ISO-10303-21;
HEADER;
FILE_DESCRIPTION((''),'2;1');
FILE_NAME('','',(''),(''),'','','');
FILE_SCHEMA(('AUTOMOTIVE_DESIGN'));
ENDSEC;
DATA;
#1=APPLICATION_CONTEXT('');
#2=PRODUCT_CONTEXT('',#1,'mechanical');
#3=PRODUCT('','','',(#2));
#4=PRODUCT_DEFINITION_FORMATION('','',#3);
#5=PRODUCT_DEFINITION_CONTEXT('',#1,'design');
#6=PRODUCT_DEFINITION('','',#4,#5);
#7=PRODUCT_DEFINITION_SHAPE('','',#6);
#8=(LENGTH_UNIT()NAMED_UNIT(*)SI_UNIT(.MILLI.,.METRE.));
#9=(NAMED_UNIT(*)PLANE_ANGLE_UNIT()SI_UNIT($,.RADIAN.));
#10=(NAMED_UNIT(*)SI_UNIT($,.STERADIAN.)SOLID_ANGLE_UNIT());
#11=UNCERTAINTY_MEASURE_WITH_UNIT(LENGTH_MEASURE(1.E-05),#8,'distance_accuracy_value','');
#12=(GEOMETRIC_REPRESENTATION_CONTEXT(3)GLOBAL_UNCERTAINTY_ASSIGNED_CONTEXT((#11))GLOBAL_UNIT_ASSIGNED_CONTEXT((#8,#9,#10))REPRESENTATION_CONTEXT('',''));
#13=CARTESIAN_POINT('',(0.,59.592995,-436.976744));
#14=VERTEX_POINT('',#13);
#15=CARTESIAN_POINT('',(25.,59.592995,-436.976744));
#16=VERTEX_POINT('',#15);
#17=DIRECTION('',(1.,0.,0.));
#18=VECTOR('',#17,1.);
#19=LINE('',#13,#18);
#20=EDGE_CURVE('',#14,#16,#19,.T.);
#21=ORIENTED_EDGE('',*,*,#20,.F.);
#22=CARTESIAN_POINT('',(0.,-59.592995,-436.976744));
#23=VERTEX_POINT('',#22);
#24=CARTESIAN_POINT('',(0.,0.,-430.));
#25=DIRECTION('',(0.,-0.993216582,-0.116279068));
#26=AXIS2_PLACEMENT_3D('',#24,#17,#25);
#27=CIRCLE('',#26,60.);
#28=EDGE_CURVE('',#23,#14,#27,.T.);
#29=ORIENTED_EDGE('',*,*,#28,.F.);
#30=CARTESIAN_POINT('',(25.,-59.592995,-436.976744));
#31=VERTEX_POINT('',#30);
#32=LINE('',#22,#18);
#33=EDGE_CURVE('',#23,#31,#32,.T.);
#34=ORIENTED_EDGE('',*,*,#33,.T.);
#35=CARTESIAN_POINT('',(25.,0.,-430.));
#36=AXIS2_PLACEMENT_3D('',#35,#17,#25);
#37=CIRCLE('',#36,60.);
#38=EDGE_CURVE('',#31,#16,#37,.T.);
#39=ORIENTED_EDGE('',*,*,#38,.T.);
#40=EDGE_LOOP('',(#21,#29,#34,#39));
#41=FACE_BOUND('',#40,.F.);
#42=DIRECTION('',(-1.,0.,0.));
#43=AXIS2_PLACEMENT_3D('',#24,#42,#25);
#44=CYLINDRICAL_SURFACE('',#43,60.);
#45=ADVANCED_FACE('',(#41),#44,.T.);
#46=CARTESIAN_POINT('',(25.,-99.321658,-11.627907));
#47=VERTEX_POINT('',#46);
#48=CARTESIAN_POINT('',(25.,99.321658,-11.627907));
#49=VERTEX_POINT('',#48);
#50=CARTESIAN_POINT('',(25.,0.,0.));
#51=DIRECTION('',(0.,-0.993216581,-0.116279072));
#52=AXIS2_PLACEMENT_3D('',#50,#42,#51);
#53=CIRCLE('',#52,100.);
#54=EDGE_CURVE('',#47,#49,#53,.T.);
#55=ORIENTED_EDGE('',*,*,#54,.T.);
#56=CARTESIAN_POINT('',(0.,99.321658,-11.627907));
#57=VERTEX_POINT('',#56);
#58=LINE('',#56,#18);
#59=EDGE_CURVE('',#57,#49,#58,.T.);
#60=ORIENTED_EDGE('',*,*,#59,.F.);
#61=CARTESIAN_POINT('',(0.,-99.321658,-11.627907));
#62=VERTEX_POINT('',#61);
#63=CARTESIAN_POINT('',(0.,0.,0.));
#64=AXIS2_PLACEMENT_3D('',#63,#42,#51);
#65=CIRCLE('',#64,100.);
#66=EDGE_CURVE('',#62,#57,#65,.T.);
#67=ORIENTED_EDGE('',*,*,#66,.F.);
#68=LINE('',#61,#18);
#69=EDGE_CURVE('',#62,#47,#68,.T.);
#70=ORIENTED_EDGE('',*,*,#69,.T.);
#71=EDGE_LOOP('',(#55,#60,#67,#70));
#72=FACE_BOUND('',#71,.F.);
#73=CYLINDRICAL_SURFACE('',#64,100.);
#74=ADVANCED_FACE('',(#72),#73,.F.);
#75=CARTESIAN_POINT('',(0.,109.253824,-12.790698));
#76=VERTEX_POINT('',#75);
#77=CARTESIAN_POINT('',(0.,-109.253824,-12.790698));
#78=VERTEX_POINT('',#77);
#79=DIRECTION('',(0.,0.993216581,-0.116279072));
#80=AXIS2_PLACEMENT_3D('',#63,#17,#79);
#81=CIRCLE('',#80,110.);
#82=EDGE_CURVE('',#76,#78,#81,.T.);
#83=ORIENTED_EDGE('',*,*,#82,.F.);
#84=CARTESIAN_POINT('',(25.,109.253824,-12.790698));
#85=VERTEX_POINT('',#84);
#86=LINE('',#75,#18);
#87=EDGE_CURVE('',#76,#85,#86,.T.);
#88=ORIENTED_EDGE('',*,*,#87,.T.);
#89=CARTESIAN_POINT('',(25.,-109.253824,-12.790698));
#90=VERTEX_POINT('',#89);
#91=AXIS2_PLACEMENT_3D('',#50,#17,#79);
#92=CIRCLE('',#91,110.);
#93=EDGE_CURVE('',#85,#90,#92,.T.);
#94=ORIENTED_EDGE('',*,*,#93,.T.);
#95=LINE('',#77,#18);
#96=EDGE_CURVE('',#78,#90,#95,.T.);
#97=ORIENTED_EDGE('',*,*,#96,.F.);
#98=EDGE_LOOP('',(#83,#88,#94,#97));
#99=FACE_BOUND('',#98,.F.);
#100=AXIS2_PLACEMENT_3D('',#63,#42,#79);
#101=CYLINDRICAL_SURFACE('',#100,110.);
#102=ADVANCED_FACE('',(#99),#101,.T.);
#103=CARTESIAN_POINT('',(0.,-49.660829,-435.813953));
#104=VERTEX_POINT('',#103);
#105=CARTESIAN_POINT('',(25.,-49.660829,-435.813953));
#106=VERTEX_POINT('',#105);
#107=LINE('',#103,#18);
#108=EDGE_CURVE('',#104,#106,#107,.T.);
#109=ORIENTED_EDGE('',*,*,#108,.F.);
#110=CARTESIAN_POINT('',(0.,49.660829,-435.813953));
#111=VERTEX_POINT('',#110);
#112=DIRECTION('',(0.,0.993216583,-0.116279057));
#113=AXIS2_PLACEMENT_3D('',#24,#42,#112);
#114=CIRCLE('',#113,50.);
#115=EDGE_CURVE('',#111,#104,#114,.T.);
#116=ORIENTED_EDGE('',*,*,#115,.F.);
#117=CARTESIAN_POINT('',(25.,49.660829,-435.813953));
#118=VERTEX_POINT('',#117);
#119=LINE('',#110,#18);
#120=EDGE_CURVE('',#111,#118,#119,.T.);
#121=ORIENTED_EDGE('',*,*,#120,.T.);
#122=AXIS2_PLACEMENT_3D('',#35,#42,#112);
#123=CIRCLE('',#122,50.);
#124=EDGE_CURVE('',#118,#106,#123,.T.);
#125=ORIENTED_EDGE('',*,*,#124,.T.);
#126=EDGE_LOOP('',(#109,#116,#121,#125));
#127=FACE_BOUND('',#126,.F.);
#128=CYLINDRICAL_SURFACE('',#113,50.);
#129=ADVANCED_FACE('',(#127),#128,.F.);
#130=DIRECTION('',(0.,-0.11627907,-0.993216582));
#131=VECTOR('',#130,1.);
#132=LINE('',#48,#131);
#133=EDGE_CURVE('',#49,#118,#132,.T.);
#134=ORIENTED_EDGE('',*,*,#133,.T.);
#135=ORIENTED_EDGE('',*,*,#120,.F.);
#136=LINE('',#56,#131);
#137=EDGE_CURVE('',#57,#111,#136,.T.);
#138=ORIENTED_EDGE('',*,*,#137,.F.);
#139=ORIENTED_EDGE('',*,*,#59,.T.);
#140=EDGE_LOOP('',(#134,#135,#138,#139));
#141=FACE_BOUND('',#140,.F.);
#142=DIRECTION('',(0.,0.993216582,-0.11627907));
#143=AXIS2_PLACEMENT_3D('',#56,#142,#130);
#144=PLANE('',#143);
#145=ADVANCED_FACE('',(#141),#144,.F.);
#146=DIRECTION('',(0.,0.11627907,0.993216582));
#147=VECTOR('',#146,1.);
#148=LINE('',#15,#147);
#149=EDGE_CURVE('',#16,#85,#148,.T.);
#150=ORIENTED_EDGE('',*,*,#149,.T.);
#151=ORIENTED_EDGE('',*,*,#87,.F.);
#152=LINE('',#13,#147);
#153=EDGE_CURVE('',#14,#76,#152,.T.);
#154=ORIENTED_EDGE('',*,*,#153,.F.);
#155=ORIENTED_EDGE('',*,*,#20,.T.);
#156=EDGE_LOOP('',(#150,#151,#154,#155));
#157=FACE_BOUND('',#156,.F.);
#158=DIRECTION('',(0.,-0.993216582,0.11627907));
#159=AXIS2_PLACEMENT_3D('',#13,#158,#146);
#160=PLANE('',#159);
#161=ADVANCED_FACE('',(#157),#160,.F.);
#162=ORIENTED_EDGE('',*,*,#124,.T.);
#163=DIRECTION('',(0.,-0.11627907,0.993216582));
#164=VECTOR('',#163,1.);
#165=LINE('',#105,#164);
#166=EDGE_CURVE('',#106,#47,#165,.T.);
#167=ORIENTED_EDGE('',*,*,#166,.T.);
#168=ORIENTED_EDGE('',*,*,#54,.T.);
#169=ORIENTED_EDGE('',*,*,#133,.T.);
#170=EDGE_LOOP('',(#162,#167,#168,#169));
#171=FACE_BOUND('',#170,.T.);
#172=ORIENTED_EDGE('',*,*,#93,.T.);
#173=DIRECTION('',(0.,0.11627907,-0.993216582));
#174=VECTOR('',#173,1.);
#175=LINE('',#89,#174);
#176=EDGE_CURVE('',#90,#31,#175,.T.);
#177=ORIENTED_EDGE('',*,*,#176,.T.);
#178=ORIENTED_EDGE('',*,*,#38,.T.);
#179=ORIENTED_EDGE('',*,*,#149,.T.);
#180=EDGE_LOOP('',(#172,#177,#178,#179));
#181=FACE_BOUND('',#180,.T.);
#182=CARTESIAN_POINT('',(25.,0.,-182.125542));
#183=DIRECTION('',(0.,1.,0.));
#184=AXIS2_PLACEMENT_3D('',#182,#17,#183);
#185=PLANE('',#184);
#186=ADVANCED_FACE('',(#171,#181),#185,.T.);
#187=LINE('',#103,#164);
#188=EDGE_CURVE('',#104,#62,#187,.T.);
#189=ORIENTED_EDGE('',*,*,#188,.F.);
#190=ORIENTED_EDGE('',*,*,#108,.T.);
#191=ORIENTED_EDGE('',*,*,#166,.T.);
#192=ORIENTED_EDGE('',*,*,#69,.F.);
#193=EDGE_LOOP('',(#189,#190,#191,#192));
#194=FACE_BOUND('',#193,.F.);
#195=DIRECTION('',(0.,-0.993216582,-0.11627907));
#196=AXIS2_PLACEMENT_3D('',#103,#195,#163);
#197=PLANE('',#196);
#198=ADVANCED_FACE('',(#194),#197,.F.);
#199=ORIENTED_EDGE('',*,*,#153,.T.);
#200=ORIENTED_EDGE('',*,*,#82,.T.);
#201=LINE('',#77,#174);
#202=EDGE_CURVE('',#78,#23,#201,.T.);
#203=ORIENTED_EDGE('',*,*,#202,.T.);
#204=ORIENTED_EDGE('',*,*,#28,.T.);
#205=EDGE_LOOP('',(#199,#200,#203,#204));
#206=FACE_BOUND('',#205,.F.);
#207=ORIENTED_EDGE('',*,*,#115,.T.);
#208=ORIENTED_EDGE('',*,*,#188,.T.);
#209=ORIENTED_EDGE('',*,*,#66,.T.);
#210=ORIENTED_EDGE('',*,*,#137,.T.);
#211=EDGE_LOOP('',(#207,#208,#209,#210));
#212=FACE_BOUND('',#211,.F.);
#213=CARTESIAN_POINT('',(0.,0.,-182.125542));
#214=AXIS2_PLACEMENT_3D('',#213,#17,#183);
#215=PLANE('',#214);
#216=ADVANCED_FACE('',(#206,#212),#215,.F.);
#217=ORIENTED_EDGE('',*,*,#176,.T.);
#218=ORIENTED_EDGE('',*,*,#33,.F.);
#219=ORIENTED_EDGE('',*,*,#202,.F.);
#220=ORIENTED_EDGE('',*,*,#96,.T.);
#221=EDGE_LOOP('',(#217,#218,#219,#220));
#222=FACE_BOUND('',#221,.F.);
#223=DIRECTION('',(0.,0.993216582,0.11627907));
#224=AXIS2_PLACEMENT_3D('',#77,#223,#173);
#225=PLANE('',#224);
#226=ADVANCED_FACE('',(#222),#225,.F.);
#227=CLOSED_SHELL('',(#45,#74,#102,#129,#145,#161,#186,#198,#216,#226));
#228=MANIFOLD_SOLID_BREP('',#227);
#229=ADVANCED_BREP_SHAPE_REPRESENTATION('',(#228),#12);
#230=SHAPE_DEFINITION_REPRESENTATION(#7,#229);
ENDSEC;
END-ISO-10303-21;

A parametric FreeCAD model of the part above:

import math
import FreeCAD as App
import Part
import Sketcher
from FreeCAD import Vector
Q = App.Units.Quantity

doc = App.newDocument("Part")
body = doc.addObject("PartDesign::Body", "Body")

sketch1 = body.newObject("Sketcher::SketchObject", "Sketch")
sketch1.AttachmentSupport = (doc.getObject("YZ_Plane"), [""])
sketch1.MapMode = "FlatFace"
sketch1.addGeometry([
    Part.ArcOfCircle(Part.Circle(Vector(0, 0, 0), Vector(0, 0, 1), 110), math.radians(-6.677405), math.radians(186.677405)),
    Part.LineSegment(Vector(-109.253824, -12.790698, 0), Vector(-59.592995, -436.976744, 0)),
    Part.ArcOfCircle(Part.Circle(Vector(0, -430, 0), Vector(0, 0, 1), 60), math.radians(-173.322595), math.radians(-6.677405)),
    Part.LineSegment(Vector(59.592995, -436.976744, 0), Vector(109.253824, -12.790698, 0)),
    Part.LineSegment(Vector(-49.660829, -435.813953, 0), Vector(-99.321658, -11.627907, 0)),
    Part.ArcOfCircle(Part.Circle(Vector(0, 0, 0), Vector(0, 0, 1), 100), math.radians(-6.677405), math.radians(186.677405)),
    Part.LineSegment(Vector(99.321658, -11.627907, 0), Vector(49.660829, -435.813953, 0)),
    Part.ArcOfCircle(Part.Circle(Vector(0, -430, 0), Vector(0, 0, 1), 50), math.radians(-173.322595), math.radians(-6.677405)),
], False)
sketch1.addConstraint([
    Sketcher.Constraint("Tangent", 0, 2, 1, 1),
    Sketcher.Constraint("Tangent", 1, 2, 2, 1),
    Sketcher.Constraint("Tangent", 2, 2, 3, 1),
    Sketcher.Constraint("Tangent", 3, 2, 0, 1),
    Sketcher.Constraint("Tangent", 4, 2, 5, 2),
    Sketcher.Constraint("Tangent", 5, 1, 6, 1),
    Sketcher.Constraint("Tangent", 6, 2, 7, 2),
    Sketcher.Constraint("Tangent", 7, 1, 4, 1),
    Sketcher.Constraint("Coincident", 0, 3, -1, 1),
    Sketcher.Constraint("Coincident", 5, 3, -1, 1),
    Sketcher.Constraint("Coincident", 7, 3, 2, 3),
    Sketcher.Constraint("PointOnObject", 2, 3, -2),
    Sketcher.Constraint("Parallel", 1, 4),
    Sketcher.Constraint("Radius", 0, Q("110 mm")),
    Sketcher.Constraint("Radius", 2, Q("60 mm")),
    Sketcher.Constraint("Radius", 5, Q("100 mm")),
    Sketcher.Constraint("DistanceY", 2, 3, -1, 1, Q("430 mm")),
])
pad1 = body.newObject("PartDesign::Pad", "Pad")
pad1.Profile = sketch1
pad1.Length = 25

doc.recompute()
